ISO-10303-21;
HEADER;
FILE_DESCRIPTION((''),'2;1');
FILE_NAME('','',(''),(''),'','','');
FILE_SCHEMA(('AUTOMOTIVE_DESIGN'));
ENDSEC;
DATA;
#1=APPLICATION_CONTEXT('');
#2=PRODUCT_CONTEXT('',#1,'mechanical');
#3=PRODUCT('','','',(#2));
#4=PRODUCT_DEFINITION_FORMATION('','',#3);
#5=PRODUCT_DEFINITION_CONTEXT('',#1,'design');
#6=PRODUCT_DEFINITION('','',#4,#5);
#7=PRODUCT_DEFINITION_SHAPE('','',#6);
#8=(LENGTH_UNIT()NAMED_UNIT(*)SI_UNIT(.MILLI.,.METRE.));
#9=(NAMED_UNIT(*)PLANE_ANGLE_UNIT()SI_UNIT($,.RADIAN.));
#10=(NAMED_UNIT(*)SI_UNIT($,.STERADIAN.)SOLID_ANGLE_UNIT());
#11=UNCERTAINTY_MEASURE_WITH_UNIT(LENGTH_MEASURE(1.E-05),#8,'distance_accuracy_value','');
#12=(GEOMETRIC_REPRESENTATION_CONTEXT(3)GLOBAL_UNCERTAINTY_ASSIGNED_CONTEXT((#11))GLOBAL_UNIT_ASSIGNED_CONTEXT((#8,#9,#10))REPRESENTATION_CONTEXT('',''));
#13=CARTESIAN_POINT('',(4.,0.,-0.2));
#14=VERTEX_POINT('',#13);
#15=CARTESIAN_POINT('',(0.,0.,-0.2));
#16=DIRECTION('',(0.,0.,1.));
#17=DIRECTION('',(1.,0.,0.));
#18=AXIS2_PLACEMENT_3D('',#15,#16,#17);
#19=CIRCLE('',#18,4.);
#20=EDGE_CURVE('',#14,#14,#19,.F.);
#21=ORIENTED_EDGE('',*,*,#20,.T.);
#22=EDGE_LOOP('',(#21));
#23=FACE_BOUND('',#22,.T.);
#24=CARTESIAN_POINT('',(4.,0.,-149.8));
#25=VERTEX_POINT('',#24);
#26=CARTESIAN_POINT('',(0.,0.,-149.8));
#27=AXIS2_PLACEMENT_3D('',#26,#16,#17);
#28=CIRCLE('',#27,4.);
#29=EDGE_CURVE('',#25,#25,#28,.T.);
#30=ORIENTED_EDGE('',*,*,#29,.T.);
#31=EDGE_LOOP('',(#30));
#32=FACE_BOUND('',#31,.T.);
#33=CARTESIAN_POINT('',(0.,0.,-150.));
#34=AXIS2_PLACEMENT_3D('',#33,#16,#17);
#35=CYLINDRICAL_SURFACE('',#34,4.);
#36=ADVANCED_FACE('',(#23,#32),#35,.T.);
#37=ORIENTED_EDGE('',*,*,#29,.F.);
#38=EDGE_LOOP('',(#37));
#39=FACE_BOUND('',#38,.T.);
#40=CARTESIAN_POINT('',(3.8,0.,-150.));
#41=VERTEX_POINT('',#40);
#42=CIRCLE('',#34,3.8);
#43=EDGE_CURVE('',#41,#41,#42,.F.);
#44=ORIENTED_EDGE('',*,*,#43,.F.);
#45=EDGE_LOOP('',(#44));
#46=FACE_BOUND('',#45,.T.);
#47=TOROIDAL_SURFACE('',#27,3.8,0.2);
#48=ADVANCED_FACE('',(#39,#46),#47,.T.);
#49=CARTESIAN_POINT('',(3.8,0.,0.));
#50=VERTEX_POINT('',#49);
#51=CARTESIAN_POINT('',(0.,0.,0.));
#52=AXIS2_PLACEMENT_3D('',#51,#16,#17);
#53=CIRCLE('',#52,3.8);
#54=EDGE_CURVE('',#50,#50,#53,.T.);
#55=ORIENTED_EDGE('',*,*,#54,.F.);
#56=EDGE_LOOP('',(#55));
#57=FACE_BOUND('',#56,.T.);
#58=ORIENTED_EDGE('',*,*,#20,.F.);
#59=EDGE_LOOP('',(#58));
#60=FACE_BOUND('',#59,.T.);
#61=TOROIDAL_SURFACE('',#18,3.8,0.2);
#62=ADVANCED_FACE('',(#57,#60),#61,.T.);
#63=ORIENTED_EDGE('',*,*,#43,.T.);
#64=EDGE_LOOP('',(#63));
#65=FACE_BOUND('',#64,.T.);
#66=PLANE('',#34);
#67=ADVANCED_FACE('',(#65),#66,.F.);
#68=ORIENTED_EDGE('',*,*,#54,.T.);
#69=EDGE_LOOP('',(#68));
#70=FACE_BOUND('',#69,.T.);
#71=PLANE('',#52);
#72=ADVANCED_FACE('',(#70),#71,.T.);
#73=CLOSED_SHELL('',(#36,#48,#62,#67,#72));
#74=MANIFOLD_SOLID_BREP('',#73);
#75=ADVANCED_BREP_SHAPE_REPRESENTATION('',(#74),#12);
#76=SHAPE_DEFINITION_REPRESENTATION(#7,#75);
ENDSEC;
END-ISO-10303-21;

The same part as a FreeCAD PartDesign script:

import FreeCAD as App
import Part
import Sketcher
from FreeCAD import Vector
Q = App.Units.Quantity


def edges_at(feature, points):
    """Names of the edges that pass closest to the given points."""
    edges = feature.Shape.Edges
    near = lambda p: min(range(len(edges)), key=lambda i: edges[i].distToShape(Part.Vertex(*p))[0])
    return sorted({f"Edge{near(p) + 1}" for p in points})

doc = App.newDocument("Part")
body = doc.addObject("PartDesign::Body", "Body")

sketch1 = body.newObject("Sketcher::SketchObject", "Sketch")
sketch1.AttachmentSupport = (doc.getObject("XY_Plane"), [""])
sketch1.MapMode = "FlatFace"
sketch1.addGeometry(Part.Circle(Vector(0, 0, 0), Vector(0, 0, 1), 4), False)
sketch1.addConstraint([
    Sketcher.Constraint("Coincident", 0, 3, -1, 1),
    Sketcher.Constraint("Diameter", 0, Q("8 mm")),
])
pad1 = body.newObject("PartDesign::Pad", "Pad")
pad1.Profile = sketch1
pad1.Length = 150
pad1.Reversed = True
doc.recompute()

fillet = body.newObject("PartDesign::Fillet", "Fillet")
fillet.Base = (pad1, edges_at(pad1, [(-4, 0, 0), (-4, 0, -150)]))
fillet.Radius = 0.2

doc.recompute()
